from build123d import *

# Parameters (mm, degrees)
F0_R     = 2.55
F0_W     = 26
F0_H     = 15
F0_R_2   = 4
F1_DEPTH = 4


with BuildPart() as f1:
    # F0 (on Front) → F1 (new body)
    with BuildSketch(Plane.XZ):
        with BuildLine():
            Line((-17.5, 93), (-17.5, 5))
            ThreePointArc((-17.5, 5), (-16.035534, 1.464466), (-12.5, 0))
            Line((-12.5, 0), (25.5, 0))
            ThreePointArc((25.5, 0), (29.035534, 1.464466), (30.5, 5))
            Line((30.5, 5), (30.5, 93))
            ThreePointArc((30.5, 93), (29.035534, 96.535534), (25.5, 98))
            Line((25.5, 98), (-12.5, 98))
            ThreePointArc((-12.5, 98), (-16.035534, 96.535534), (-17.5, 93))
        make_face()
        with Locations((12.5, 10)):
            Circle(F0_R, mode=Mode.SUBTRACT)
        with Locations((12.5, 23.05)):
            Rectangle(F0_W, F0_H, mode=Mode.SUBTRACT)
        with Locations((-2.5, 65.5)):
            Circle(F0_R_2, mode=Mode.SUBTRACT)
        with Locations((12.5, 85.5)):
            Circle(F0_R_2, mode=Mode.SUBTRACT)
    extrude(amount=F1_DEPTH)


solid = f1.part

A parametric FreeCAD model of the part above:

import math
import FreeCAD as App
import Part
import Sketcher

V = App.Vector
Q = App.Units.Quantity


def add_polygon(sketch, points):
    """Adds a closed chain of lines whose ends are joined by coincident constraints."""
    first, n = sketch.GeometryCount, len(points)
    for a, b in zip(points, points[1:] + points[:1]):
        sketch.addGeometry(Part.LineSegment(App.Vector(*a, 0), App.Vector(*b, 0)), False)
    for i in range(n):
        sketch.addConstraint(Sketcher.Constraint("Coincident", first + i, 2, first + (i + 1) % n, 1))

doc = App.newDocument("Part")
body = doc.addObject("PartDesign::Body", "Body")

sketch1 = body.newObject("Sketcher::SketchObject", "Sketch")
sketch1.AttachmentSupport = (doc.getObject("XZ_Plane"), [""])
sketch1.MapMode = "FlatFace"
sketch1.addGeometry(Part.LineSegment(V(-17.5, 93, 0), V(-17.5, 5, 0)), False)
sketch1.addGeometry(Part.ArcOfCircle(Part.Circle(V(-12.5, 5, 0), V(0, 0, 1), 5), math.radians(180), math.radians(270)), False)
sketch1.addGeometry(Part.LineSegment(V(-12.5, 0, 0), V(25.5, 0, 0)), False)
sketch1.addGeometry(Part.ArcOfCircle(Part.Circle(V(25.5, 5, 0), V(0, 0, 1), 5), math.radians(-90), math.radians(0)), False)
sketch1.addGeometry(Part.LineSegment(V(30.5, 5, 0), V(30.5, 93, 0)), False)
sketch1.addGeometry(Part.ArcOfCircle(Part.Circle(V(25.5, 93, 0), V(0, 0, 1), 5), math.radians(0), math.radians(90)), False)
sketch1.addGeometry(Part.LineSegment(V(25.5, 98, 0), V(-12.5, 98, 0)), False)
sketch1.addGeometry(Part.ArcOfCircle(Part.Circle(V(-12.5, 93, 0), V(0, 0, 1), 5), math.radians(90), math.radians(180)), False)
sketch1.addGeometry(Part.Circle(V(12.5, 10, 0), V(0, 0, 1), 2.5), False)
add_polygon(sketch1, [(25.5, 15.6), (-0.5, 15.6), (-0.5, 30.6), (25.5, 30.6)])
sketch1.addGeometry(Part.Circle(V(-2.5, 65.5, 0), V(0, 0, 1), 4), False)
sketch1.addGeometry(Part.Circle(V(12.5, 85.5, 0), V(0, 0, 1), 4), False)
sketch1.addConstraint([
    Sketcher.Constraint("Tangent", 0, 2, 1, 1),
    Sketcher.Constraint("Tangent", 1, 2, 2, 1),
    Sketcher.Constraint("Tangent", 2, 2, 3, 1),
    Sketcher.Constraint("Tangent", 3, 2, 4, 1),
    Sketcher.Constraint("Tangent", 4, 2, 5, 1),
    Sketcher.Constraint("Tangent", 5, 2, 6, 1),
    Sketcher.Constraint("Tangent", 6, 2, 7, 1),
    Sketcher.Constraint("Tangent", 7, 2, 0, 1),
    Sketcher.Constraint("Vertical", 0),
    Sketcher.Constraint("Horizontal", 2),
    Sketcher.Constraint("Vertical", 4),
    Sketcher.Constraint("Horizontal", 6),
    Sketcher.Constraint("Horizontal", 9),
    Sketcher.Constraint("Vertical", 10),
    Sketcher.Constraint("Horizontal", 11),
    Sketcher.Constraint("Vertical", 12),
    Sketcher.Constraint("Equal", 1, 3),
    Sketcher.Constraint("Equal", 3, 5),
    Sketcher.Constraint("Equal", 5, 7),
    Sketcher.Constraint("Equal", 13, 14),
    Sketcher.Constraint("PointOnObject", 1, 2, -1),
    Sketcher.Constraint("Vertical", 8, 3, 14, 3),
    Sketcher.Constraint("Vertical", 5, 2, 11, 2),
    Sketcher.Constraint("Diameter", 13, Q("8 mm")),
    Sketcher.Constraint("Radius", 1, Q("5 mm")),
    Sketcher.Constraint("Diameter", 8, Q("5.1 mm")),
    Sketcher.Constraint("DistanceX", 2, 1, 2, 2, Q("38 mm")),
    Sketcher.Constraint("DistanceX", 9, 2, 9, 1, Q("26 mm")),
    Sketcher.Constraint("DistanceY", 0, 2, 0, 1, Q("88 mm")),
    Sketcher.Constraint("DistanceY", 10, 1, 10, 2, Q("15 mm")),
    Sketcher.Constraint("DistanceY", -1, 1, 8, 3, Q("10 mm")),
    Sketcher.Constraint("DistanceX", 8, 3, 3, 3, Q("13 mm")),
    Sketcher.Constraint("DistanceX", 7, 3, 13, 3, Q("10 mm")),
    Sketcher.Constraint("DistanceY", 13, 3, 14, 3, Q("20 mm")),
    Sketcher.Constraint("DistanceX", 1, 3, -1, 1, Q("12.5 mm")),
    Sketcher.Constraint("DistanceY", -1, 1, 13, 3, Q("65.5 mm")),
    Sketcher.Constraint("DistanceY", -1, 1, 9, 2, Q("15.55 mm")),
])
pad1 = body.newObject("PartDesign::Pad", "Pad")
pad1.Profile = sketch1
pad1.Length = 4

doc.recompute()
